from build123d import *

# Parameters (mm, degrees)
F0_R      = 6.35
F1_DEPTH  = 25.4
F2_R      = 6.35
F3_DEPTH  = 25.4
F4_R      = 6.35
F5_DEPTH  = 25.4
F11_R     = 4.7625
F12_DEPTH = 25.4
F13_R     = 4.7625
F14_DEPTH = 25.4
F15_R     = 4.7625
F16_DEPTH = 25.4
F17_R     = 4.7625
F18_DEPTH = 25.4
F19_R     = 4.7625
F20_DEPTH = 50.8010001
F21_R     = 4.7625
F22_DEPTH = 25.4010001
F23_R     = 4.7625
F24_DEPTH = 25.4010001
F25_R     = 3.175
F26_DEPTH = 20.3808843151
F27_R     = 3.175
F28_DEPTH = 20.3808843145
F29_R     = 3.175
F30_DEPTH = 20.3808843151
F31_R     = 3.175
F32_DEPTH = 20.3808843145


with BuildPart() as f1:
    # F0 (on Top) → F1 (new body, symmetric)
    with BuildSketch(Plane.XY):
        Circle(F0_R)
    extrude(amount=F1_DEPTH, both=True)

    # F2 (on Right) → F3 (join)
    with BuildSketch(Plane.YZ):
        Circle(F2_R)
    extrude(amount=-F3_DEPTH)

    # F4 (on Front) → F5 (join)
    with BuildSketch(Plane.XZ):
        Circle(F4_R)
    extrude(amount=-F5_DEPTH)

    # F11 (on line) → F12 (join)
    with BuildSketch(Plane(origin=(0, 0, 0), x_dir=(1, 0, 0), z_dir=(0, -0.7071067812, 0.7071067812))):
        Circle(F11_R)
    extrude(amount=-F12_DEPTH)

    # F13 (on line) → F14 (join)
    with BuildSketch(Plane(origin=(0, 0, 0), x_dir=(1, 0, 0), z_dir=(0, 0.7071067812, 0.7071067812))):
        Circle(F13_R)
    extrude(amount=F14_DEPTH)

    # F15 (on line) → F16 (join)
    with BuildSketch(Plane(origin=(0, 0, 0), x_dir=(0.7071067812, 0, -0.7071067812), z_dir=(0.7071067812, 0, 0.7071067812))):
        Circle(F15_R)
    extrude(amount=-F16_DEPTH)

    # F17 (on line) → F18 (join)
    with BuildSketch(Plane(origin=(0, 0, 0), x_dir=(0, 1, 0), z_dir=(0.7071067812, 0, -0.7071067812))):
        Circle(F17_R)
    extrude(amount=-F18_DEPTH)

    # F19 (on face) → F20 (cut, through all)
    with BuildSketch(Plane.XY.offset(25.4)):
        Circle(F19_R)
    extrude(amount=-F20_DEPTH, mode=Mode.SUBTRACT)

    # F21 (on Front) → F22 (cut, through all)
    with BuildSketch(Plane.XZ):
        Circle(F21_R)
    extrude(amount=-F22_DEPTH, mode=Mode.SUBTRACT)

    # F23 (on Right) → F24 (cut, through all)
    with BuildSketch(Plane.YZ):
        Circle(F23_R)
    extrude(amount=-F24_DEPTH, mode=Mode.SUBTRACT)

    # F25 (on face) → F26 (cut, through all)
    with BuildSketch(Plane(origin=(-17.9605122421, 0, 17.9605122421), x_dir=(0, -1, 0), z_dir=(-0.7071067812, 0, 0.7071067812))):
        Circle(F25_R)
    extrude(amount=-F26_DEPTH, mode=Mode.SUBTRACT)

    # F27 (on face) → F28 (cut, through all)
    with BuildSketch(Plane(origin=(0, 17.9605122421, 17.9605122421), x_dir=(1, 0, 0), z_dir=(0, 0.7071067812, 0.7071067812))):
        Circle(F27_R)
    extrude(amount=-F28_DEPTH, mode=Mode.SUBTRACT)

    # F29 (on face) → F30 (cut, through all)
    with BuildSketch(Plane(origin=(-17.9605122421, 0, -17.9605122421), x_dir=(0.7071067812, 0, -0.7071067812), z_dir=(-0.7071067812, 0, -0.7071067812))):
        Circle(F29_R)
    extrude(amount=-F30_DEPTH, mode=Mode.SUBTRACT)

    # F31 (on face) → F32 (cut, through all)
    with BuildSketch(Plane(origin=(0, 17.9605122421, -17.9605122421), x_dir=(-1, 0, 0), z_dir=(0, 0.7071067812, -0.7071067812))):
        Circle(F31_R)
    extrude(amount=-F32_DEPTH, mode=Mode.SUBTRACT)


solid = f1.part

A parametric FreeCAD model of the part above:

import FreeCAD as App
import Part
import Sketcher
from FreeCAD import Vector
Q = App.Units.Quantity

doc = App.newDocument("Part")
body = doc.addObject("PartDesign::Body", "Body")

# Sketch on XY plane
sketch1 = doc.addObject("Sketcher::SketchObject", "Sketch")
body.addObject(sketch1)
sketch1.AttachmentSupport = (doc.XY_Plane, [""])
sketch1.MapMode = "FlatFace"
sketch1.addGeometry(Part.Circle(Vector(0, 0, 0), Vector(0, 0, 1), 6), False)
sketch1.addConstraint([
    Sketcher.Constraint("Coincident", 0, 3, -1, 1),
    Sketcher.Constraint("Diameter", 0, Q("0.5 in")),
])
pad1 = doc.addObject("PartDesign::Pad", "Pad")
body.addObject(pad1)
pad1.Profile = sketch1
pad1.Length = Q("2 in")
pad1.Midplane = True

# Sketch on YZ plane
sketch2 = doc.addObject("Sketcher::SketchObject", "Sketch001")
body.addObject(sketch2)
sketch2.AttachmentSupport = (doc.YZ_Plane, [""])
sketch2.MapMode = "FlatFace"
sketch2.addGeometry(Part.Circle(Vector(0, 0, 0), Vector(0, 0, 1), 6), False)
sketch2.addConstraint([
    Sketcher.Constraint("Coincident", 0, 3, -1, 1),
    Sketcher.Constraint("Diameter", 0, Q("0.5 in")),
])
pad2 = doc.addObject("PartDesign::Pad", "Pad001")
body.addObject(pad2)
pad2.Profile = sketch2
pad2.Length = Q("1 in")
pad2.Reversed = True

# Sketch on XZ plane
sketch3 = doc.addObject("Sketcher::SketchObject", "Sketch002")
body.addObject(sketch3)
sketch3.AttachmentSupport = (doc.XZ_Plane, [""])
sketch3.MapMode = "FlatFace"
sketch3.addGeometry(Part.Circle(Vector(0, 0, 0), Vector(0, 0, 1), 6), False)
sketch3.addConstraint([
    Sketcher.Constraint("Coincident", 0, 3, -1, 1),
    Sketcher.Constraint("Diameter", 0, Q("0.5 in")),
])
pad3 = doc.addObject("PartDesign::Pad", "Pad002")
body.addObject(pad3)
pad3.Profile = sketch3
pad3.Length = Q("1 in")
pad3.Reversed = True

# Sketch on an angled plane
sketch4 = doc.addObject("Sketcher::SketchObject", "Sketch003")
body.addObject(sketch4)
sketch4.Placement = App.Placement(Vector(0, 0, 0), App.Rotation(Vector(1, 0, 0), Vector(0, 0.707106781, 0.707106781), Vector(0, -0.707106781, 0.707106781), "ZXY"))
sketch4.addGeometry(Part.Circle(Vector(0, 0, 0), Vector(0, 0, 1), 4.8), False)
sketch4.addConstraint([
    Sketcher.Constraint("Coincident", 0, 3, -1, 1),
    Sketcher.Constraint("Diameter", 0, Q("0.375 in")),
])
pad4 = doc.addObject("PartDesign::Pad", "Pad003")
body.addObject(pad4)
pad4.Profile = sketch4
pad4.Length = Q("1 in")
pad4.Reversed = True

# Sketch on an angled plane
sketch5 = doc.addObject("Sketcher::SketchObject", "Sketch004")
body.addObject(sketch5)
sketch5.Placement = App.Placement(Vector(0, 0, 0), App.Rotation(Vector(1, 0, 0), Vector(0, 0.707106781, -0.707106781), Vector(0, 0.707106781, 0.707106781), "ZXY"))
sketch5.addGeometry(Part.Circle(Vector(0, 0, 0), Vector(0, 0, 1), 4.8), False)
sketch5.addConstraint([
    Sketcher.Constraint("Coincident", 0, 3, -1, 1),
    Sketcher.Constraint("Diameter", 0, Q("0.375 in")),
])
pad5 = doc.addObject("PartDesign::Pad", "Pad004")
body.addObject(pad5)
pad5.Profile = sketch5
pad5.Length = Q("1 in")

# Sketch on an angled plane
sketch6 = doc.addObject("Sketcher::SketchObject", "Sketch005")
body.addObject(sketch6)
sketch6.Placement = App.Placement(Vector(0, 0, 0), App.Rotation(Vector(0.707106781, 0, -0.707106781), Vector(0, 0.999999999, 0), Vector(0.707106781, 0, 0.707106781), "ZXY"))
sketch6.addGeometry(Part.Circle(Vector(0, 0, 0), Vector(0, 0, 1), 4.8), False)
sketch6.addConstraint([
    Sketcher.Constraint("Coincident", 0, 3, -1, 1),
    Sketcher.Constraint("Diameter", 0, Q("0.375 in")),
])
pad6 = doc.addObject("PartDesign::Pad", "Pad005")
body.addObject(pad6)
pad6.Profile = sketch6
pad6.Length = Q("1 in")
pad6.Reversed = True

# Sketch on an angled plane
sketch7 = doc.addObject("Sketcher::SketchObject", "Sketch006")
body.addObject(sketch7)
sketch7.Placement = App.Placement(Vector(0, 0, 0), App.Rotation(Vector(0, 1, 0), Vector(0.707106781, 0, 0.707106781), Vector(0.707106781, 0, -0.707106781), "ZXY"))
sketch7.addGeometry(Part.Circle(Vector(0, 0, 0), Vector(0, 0, 1), 4.8), False)
sketch7.addConstraint([
    Sketcher.Constraint("Coincident", 0, 3, -1, 1),
    Sketcher.Constraint("Diameter", 0, Q("0.375 in")),
])
pad7 = doc.addObject("PartDesign::Pad", "Pad006")
body.addObject(pad7)
pad7.Profile = sketch7
pad7.Length = Q("1 in")
pad7.Reversed = True

# Sketch on XY plane
sketch8 = doc.addObject("Sketcher::SketchObject", "Sketch007")
body.addObject(sketch8)
sketch8.AttachmentSupport = (doc.XY_Plane, [""])
sketch8.MapMode = "FlatFace"
sketch8.AttachmentOffset = App.Placement(Vector(0, 0, 1 * 25.4), App.Rotation())
sketch8.addGeometry(Part.Circle(Vector(0, 0, 0), Vector(0, 0, 1), 4.8), False)
sketch8.addConstraint([
    Sketcher.Constraint("Coincident", 0, 3, -1, 1),
    Sketcher.Constraint("Diameter", 0, Q("0.375 in")),
])
pocket1 = doc.addObject("PartDesign::Pocket", "Pocket")
body.addObject(pocket1)
pocket1.Profile = sketch8
pocket1.Type = "ThroughAll"

# Sketch on XZ plane
sketch9 = doc.addObject("Sketcher::SketchObject", "Sketch008")
body.addObject(sketch9)
sketch9.AttachmentSupport = (doc.XZ_Plane, [""])
sketch9.MapMode = "FlatFace"
sketch9.addGeometry(Part.Circle(Vector(0, 0, 0), Vector(0, 0, 1), 4.8), False)
sketch9.addConstraint([
    Sketcher.Constraint("Coincident", 0, 3, -1, 1),
    Sketcher.Constraint("Diameter", 0, Q("0.375 in")),
])
pocket2 = doc.addObject("PartDesign::Pocket", "Pocket001")
body.addObject(pocket2)
pocket2.Profile = sketch9
pocket2.Type = "ThroughAll"

# Sketch on YZ plane
sketch10 = doc.addObject("Sketcher::SketchObject", "Sketch009")
body.addObject(sketch10)
sketch10.AttachmentSupport = (doc.YZ_Plane, [""])
sketch10.MapMode = "FlatFace"
sketch10.addGeometry(Part.Circle(Vector(0, 0, 0), Vector(0, 0, 1), 4.8), False)
sketch10.addConstraint([
    Sketcher.Constraint("Coincident", 0, 3, -1, 1),
    Sketcher.Constraint("Diameter", 0, Q("0.375 in")),
])
pocket3 = doc.addObject("PartDesign::Pocket", "Pocket002")
body.addObject(pocket3)
pocket3.Profile = sketch10
pocket3.Type = "ThroughAll"

# Sketch on an angled plane
sketch11 = doc.addObject("Sketcher::SketchObject", "Sketch010")
body.addObject(sketch11)
sketch11.Placement = App.Placement(Vector(-17.960512, 0, 17.960512), App.Rotation(Vector(0, -1, 0), Vector(0.707106781, 0, 0.707106781), Vector(-0.707106781, 0, 0.707106781), "ZXY"))
sketch11.addGeometry(Part.Circle(Vector(0, 0, 0), Vector(0, 0, 1), 3.2), False)
sketch11.addConstraint([
    Sketcher.Constraint("Coincident", 0, 3, -1, 1),
    Sketcher.Constraint("Diameter", 0, Q("0.25 in")),
])
pocket4 = doc.addObject("PartDesign::Pocket", "Pocket003")
body.addObject(pocket4)
pocket4.Profile = sketch11
pocket4.Length = 20.380884

# Sketch on an angled plane
sketch12 = doc.addObject("Sketcher::SketchObject", "Sketch011")
body.addObject(sketch12)
sketch12.Placement = App.Placement(Vector(0, 17.960512, 17.960512), App.Rotation(Vector(1, 0, 0), Vector(0, 0.707106781, -0.707106781), Vector(0, 0.707106781, 0.707106781), "ZXY"))
sketch12.addGeometry(Part.Circle(Vector(0, 0, 0), Vector(0, 0, 1), 3.2), False)
sketch12.addConstraint([
    Sketcher.Constraint("Coincident", 0, 3, -1, 1),
    Sketcher.Constraint("Diameter", 0, Q("0.25 in")),
])
pocket5 = doc.addObject("PartDesign::Pocket", "Pocket004")
body.addObject(pocket5)
pocket5.Profile = sketch12
pocket5.Length = 20.380884

# Sketch on an angled plane
sketch13 = doc.addObject("Sketcher::SketchObject", "Sketch012")
body.addObject(sketch13)
sketch13.Placement = App.Placement(Vector(-17.960512, 0, -17.960512), App.Rotation(Vector(0.707106781, 0, -0.707106781), Vector(0, -0.999999999, 0), Vector(-0.707106781, 0, -0.707106781), "ZXY"))
sketch13.addGeometry(Part.Circle(Vector(0, 0, 0), Vector(0, 0, 1), 3.2), False)
sketch13.addConstraint([
    Sketcher.Constraint("Coincident", 0, 3, -1, 1),
    Sketcher.Constraint("Diameter", 0, Q("0.25 in")),
])
pocket6 = doc.addObject("PartDesign::Pocket", "Pocket005")
body.addObject(pocket6)
pocket6.Profile = sketch13
pocket6.Length = 20.380884

# Sketch on an angled plane
sketch14 = doc.addObject("Sketcher::SketchObject", "Sketch013")
body.addObject(sketch14)
sketch14.Placement = App.Placement(Vector(0, 17.960512, -17.960512), App.Rotation(Vector(-1, 0, 0), Vector(0, 0.707106781, 0.707106781), Vector(0, 0.707106781, -0.707106781), "ZXY"))
sketch14.addGeometry(Part.Circle(Vector(0, 0, 0), Vector(0, 0, 1), 3.2), False)
sketch14.addConstraint([
    Sketcher.Constraint("Coincident", 0, 3, -1, 1),
    Sketcher.Constraint("Diameter", 0, Q("0.25 in")),
])
pocket7 = doc.addObject("PartDesign::Pocket", "Pocket006")
body.addObject(pocket7)
pocket7.Profile = sketch14
pocket7.Length = 20.380884

doc.recompute()
